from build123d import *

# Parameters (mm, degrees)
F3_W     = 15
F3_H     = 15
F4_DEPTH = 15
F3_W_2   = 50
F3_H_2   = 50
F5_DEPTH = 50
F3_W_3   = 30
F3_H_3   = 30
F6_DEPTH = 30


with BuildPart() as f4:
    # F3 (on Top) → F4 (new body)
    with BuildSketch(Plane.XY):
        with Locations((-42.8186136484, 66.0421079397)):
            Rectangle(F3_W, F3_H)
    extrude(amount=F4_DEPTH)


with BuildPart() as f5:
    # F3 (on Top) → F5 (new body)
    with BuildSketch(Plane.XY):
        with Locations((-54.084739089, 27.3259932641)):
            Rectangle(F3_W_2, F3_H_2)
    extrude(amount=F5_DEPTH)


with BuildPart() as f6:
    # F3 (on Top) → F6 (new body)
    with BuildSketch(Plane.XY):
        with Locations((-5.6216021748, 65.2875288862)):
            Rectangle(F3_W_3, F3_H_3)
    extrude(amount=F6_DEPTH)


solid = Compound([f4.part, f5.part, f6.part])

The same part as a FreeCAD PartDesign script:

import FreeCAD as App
import Part
import Sketcher
Q = App.Units.Quantity

doc = App.newDocument("Part")
body = doc.addObject("PartDesign::Body", "Body")

sketch1 = doc.addObject("Sketcher::SketchObject", "Sketch")
body.addObject(sketch1)
sketch1.AttachmentSupport = (doc.XY_Plane, [""])
sketch1.MapMode = "FlatFace"
sketch1.addGeometry([
    Part.LineSegment(App.Vector(-50.318614, 73.542108, 0), App.Vector(-50.318614, 58.542108, 0)),
    Part.LineSegment(App.Vector(-50.318614, 58.542108, 0), App.Vector(-35.318614, 58.542108, 0)),
    Part.LineSegment(App.Vector(-35.318614, 58.542108, 0), App.Vector(-35.318614, 73.542108, 0)),
    Part.LineSegment(App.Vector(-35.318614, 73.542108, 0), App.Vector(-50.318614, 73.542108, 0)),
], False)
sketch1.addConstraint([
    Sketcher.Constraint("Coincident", 0, 2, 1, 1),
    Sketcher.Constraint("Coincident", 1, 2, 2, 1),
    Sketcher.Constraint("Coincident", 2, 2, 3, 1),
    Sketcher.Constraint("Coincident", 3, 2, 0, 1),
    Sketcher.Constraint("Vertical", 0),
    Sketcher.Constraint("Horizontal", 1),
    Sketcher.Constraint("Vertical", 2),
    Sketcher.Constraint("Horizontal", 3),
    Sketcher.Constraint("Equal", 3, 0),
    Sketcher.Constraint("DistanceX", 1, 1, 1, 2, Q("15 mm")),
    Sketcher.Constraint("DistanceX", 0, 2, -1, 1, Q("50.318614 mm")),
    Sketcher.Constraint("DistanceY", -1, 1, 0, 2, Q("58.542108 mm")),
])
pad1 = doc.addObject("PartDesign::Pad", "Pad")
body.addObject(pad1)
pad1.Profile = sketch1
pad1.Length = 15
body2 = doc.addObject("PartDesign::Body", "Body001")

sketch2 = doc.addObject("Sketcher::SketchObject", "Sketch001")
body2.addObject(sketch2)
sketch2.AttachmentSupport = (doc.getObject("XY_Plane001"), [""])
sketch2.MapMode = "FlatFace"
sketch2.addGeometry([
    Part.LineSegment(App.Vector(-79.084739, 52.325993, 0), App.Vector(-79.084739, 2.325993, 0)),
    Part.LineSegment(App.Vector(-79.084739, 2.325993, 0), App.Vector(-29.084739, 2.325993, 0)),
    Part.LineSegment(App.Vector(-29.084739, 2.325993, 0), App.Vector(-29.084739, 52.325993, 0)),
    Part.LineSegment(App.Vector(-29.084739, 52.325993, 0), App.Vector(-79.084739, 52.325993, 0)),
], False)
sketch2.addConstraint([
    Sketcher.Constraint("Coincident", 0, 2, 1, 1),
    Sketcher.Constraint("Coincident", 1, 2, 2, 1),
    Sketcher.Constraint("Coincident", 2, 2, 3, 1),
    Sketcher.Constraint("Coincident", 3, 2, 0, 1),
    Sketcher.Constraint("Vertical", 0),
    Sketcher.Constraint("Horizontal", 1),
    Sketcher.Constraint("Vertical", 2),
    Sketcher.Constraint("Horizontal", 3),
    Sketcher.Constraint("Equal", 3, 0),
    Sketcher.Constraint("DistanceX", 1, 1, 1, 2, Q("50 mm")),
    Sketcher.Constraint("DistanceX", 0, 2, -1, 1, Q("79.084739 mm")),
    Sketcher.Constraint("DistanceY", -1, 1, 0, 2, Q("2.325993 mm")),
])
pad2 = doc.addObject("PartDesign::Pad", "Pad001")
body2.addObject(pad2)
pad2.Profile = sketch2
pad2.Length = 50
body3 = doc.addObject("PartDesign::Body", "Body002")

sketch3 = doc.addObject("Sketcher::SketchObject", "Sketch002")
body3.addObject(sketch3)
sketch3.AttachmentSupport = (doc.getObject("XY_Plane002"), [""])
sketch3.MapMode = "FlatFace"
sketch3.addGeometry([
    Part.LineSegment(App.Vector(-20.621602, 80.287529, 0), App.Vector(-20.621602, 50.287529, 0)),
    Part.LineSegment(App.Vector(-20.621602, 50.287529, 0), App.Vector(9.378398, 50.287529, 0)),
    Part.LineSegment(App.Vector(9.378398, 50.287529, 0), App.Vector(9.378398, 80.287529, 0)),
    Part.LineSegment(App.Vector(9.378398, 80.287529, 0), App.Vector(-20.621602, 80.287529, 0)),
], False)
sketch3.addConstraint([
    Sketcher.Constraint("Coincident", 0, 2, 1, 1),
    Sketcher.Constraint("Coincident", 1, 2, 2, 1),
    Sketcher.Constraint("Coincident", 2, 2, 3, 1),
    Sketcher.Constraint("Coincident", 3, 2, 0, 1),
    Sketcher.Constraint("Vertical", 0),
    Sketcher.Constraint("Horizontal", 1),
    Sketcher.Constraint("Vertical", 2),
    Sketcher.Constraint("Horizontal", 3),
    Sketcher.Constraint("Equal", 3, 0),
    Sketcher.Constraint("DistanceX", 1, 1, 1, 2, Q("30 mm")),
    Sketcher.Constraint("DistanceY", -1, 1, 0, 2, Q("50.287529 mm")),
    Sketcher.Constraint("DistanceX", 0, 2, -1, 1, Q("20.621602 mm")),
])
pad3 = doc.addObject("PartDesign::Pad", "Pad002")
body3.addObject(pad3)
pad3.Profile = sketch3
pad3.Length = 30

doc.recompute()
